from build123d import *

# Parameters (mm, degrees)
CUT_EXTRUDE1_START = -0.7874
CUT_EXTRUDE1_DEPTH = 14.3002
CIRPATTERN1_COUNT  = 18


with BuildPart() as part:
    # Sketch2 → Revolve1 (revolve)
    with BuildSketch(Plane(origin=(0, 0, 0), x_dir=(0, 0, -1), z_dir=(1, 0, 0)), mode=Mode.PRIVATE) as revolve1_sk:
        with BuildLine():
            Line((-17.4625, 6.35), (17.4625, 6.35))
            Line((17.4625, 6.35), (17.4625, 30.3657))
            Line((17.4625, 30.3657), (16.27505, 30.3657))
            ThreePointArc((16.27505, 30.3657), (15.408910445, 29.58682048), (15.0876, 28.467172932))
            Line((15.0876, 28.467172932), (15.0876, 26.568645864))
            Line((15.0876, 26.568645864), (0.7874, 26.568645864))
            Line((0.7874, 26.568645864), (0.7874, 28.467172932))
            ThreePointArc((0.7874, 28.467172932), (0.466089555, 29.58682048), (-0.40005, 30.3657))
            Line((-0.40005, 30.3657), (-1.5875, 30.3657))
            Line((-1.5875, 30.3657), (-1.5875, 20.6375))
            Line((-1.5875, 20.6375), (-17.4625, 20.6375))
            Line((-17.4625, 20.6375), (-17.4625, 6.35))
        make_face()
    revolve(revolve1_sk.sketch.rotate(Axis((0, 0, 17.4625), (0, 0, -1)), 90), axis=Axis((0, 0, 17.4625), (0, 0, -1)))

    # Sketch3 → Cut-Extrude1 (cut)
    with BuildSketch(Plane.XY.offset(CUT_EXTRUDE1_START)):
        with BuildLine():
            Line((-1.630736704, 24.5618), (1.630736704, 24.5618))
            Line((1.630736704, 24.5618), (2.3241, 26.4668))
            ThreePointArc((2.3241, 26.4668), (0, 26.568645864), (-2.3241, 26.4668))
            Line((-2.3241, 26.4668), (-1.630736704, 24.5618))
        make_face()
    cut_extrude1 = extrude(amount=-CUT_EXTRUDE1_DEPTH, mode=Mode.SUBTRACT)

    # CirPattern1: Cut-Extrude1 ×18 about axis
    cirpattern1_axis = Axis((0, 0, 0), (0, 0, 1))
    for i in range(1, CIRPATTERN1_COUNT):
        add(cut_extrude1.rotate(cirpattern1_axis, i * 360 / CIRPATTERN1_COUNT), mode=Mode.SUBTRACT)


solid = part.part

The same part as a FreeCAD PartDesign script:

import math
import FreeCAD as App
import Part
import Sketcher

V = App.Vector
Q = App.Units.Quantity

doc = App.newDocument("Part")
params = doc.addObject("Spreadsheet::Sheet", "Params")
for row, (alias, value) in enumerate([
    ("sketch1_width", "0.383 in"),
    ("sketch1_width2", "0.5625 in"),
    ("sketch1_height", "1.375 in"),
    ("sketch1_height2", "0.563 in"),
    ("sketch1_height3", "0.625 in"),
    ("revolution_angle", "360 deg"),
    ("pocket1_length", "0.563 in"),
], start=1):
    params.set(f"A{row}", alias)
    params.set(f"B{row}", "=" + value)
    params.setAlias(f"B{row}", alias)

body = doc.addObject("PartDesign::Body", "Body")

sketch1 = doc.addObject("Sketcher::SketchObject", "Sketch")
body.addObject(sketch1)
sketch1.AttachmentSupport = (doc.YZ_Plane, [""])
sketch1.MapMode = "FlatFace"
sketch1.addGeometry([
    Part.LineSegment(V(6.35, 17.4625, 0), V(6.35, -17.4625, 0)),
    Part.LineSegment(V(6.35, -17.4625, 0), V(30.3657, -17.4625, 0)),
    Part.LineSegment(V(30.3657, -17.4625, 0), V(30.3657, -16.27505, 0)),
    Part.ArcOfCircle(Part.Circle(V(28.467173, -17.199033, 0), V(0, 0, 1), 2.111433), math.radians(25.951455), math.radians(90)),
    Part.LineSegment(V(28.467173, -15.0876, 0), V(26.568646, -15.0876, 0)),
    Part.LineSegment(V(26.568646, -15.0876, 0), V(26.568646, -0.7874, 0)),
    Part.LineSegment(V(26.568646, -0.7874, 0), V(28.467173, -0.7874, 0)),
    Part.ArcOfCircle(Part.Circle(V(28.467173, 1.324033, 0), V(0, 0, 1), 2.111433), math.radians(-90), math.radians(-25.951455)),
    Part.LineSegment(V(30.3657, 0.40005, 0), V(30.3657, 1.5875, 0)),
    Part.LineSegment(V(30.3657, 1.5875, 0), V(20.6375, 1.5875, 0)),
    Part.LineSegment(V(20.6375, 1.5875, 0), V(20.6375, 17.4625, 0)),
    Part.LineSegment(V(20.6375, 17.4625, 0), V(6.35, 17.4625, 0)),
], False)
sketch1.addConstraint([
    Sketcher.Constraint("Coincident", 0, 2, 1, 1),
    Sketcher.Constraint("Coincident", 1, 2, 2, 1),
    Sketcher.Constraint("Coincident", 2, 2, 3, 1),
    Sketcher.Constraint("Tangent", 3, 2, 4, 1),
    Sketcher.Constraint("Coincident", 4, 2, 5, 1),
    Sketcher.Constraint("Coincident", 5, 2, 6, 1),
    Sketcher.Constraint("Tangent", 6, 2, 7, 1),
    Sketcher.Constraint("Coincident", 7, 2, 8, 1),
    Sketcher.Constraint("Coincident", 8, 2, 9, 1),
    Sketcher.Constraint("Coincident", 9, 2, 10, 1),
    Sketcher.Constraint("Coincident", 10, 2, 11, 1),
    Sketcher.Constraint("Coincident", 11, 2, 0, 1),
    Sketcher.Constraint("Vertical", 0),
    Sketcher.Constraint("Horizontal", 1),
    Sketcher.Constraint("Vertical", 2),
    Sketcher.Constraint("Horizontal", 4),
    Sketcher.Constraint("Vertical", 5),
    Sketcher.Constraint("Horizontal", 6),
    Sketcher.Constraint("Vertical", 8),
    Sketcher.Constraint("Horizontal", 9),
    Sketcher.Constraint("Vertical", 10),
    Sketcher.Constraint("Horizontal", 11),
    Sketcher.Constraint("Equal", 3, 7),
    Sketcher.Constraint("Vertical", 3, 3, 7, 3),
    Sketcher.Constraint("Vertical", 2, 2, 7, 2),
    Sketcher.Constraint("Equal", 2, 8),
    Sketcher.Constraint("DistanceX", 9, 2, 9, 1, Q("0.383 in")),
    Sketcher.Constraint("DistanceX", 11, 2, 11, 1, Q("0.5625 in")),
    Sketcher.Constraint("DistanceY", 0, 2, 0, 1, Q("1.375 in")),
    Sketcher.Constraint("DistanceY", 5, 1, 5, 2, Q("0.563 in")),
    Sketcher.Constraint("DistanceY", 10, 1, 10, 2, Q("0.625 in")),
    Sketcher.Constraint("DistanceX", -1, 1, 0, 2, Q("0.25 in")),
    Sketcher.Constraint("DistanceY", 0, 2, -1, 1, Q("0.6875 in")),
    Sketcher.Constraint("Radius", 3, 2.111433),
    Sketcher.Constraint("DistanceY", 2, 1, 2, 2, 1.18745),
    Sketcher.Constraint("DistanceX", 4, 2, 4, 1, 1.898527),
])
sketch1.setExpression("Constraints[26]", "Params.sketch1_width")
sketch1.setExpression("Constraints[27]", "Params.sketch1_width2")
sketch1.setExpression("Constraints[28]", "Params.sketch1_height")
sketch1.setExpression("Constraints[29]", "Params.sketch1_height2")
sketch1.setExpression("Constraints[30]", "Params.sketch1_height3")
revolution = doc.addObject("PartDesign::Revolution", "Revolution")
body.addObject(revolution)
revolution.Profile = sketch1
revolution.ReferenceAxis = (sketch1, ["V_Axis"])
revolution.setExpression("Angle", "Params.revolution_angle")

sketch2 = doc.addObject("Sketcher::SketchObject", "Sketch001")
body.addObject(sketch2)
sketch2.AttachmentSupport = (doc.XY_Plane, [""])
sketch2.MapMode = "FlatFace"
sketch2.AttachmentOffset = App.Placement(V(0, 0, -0.031 * 25.4), App.Rotation())
sketch2.addGeometry([
    Part.LineSegment(V(-1.630737, 24.5618, 0), V(1.630737, 24.5618, 0)),
    Part.LineSegment(V(1.630737, 24.5618, 0), V(2.3241, 26.4668, 0)),
    Part.ArcOfCircle(Part.Circle(V(0, 0, 0), V(0, 0, 1), 26.568646), math.radians(84.981621), math.radians(95.018379)),
    Part.LineSegment(V(-2.3241, 26.4668, 0), V(-1.630737, 24.5618, 0)),
], False)
sketch2.addConstraint([
    Sketcher.Constraint("Coincident", 0, 2, 1, 1),
    Sketcher.Constraint("Coincident", 1, 2, 2, 1),
    Sketcher.Constraint("Coincident", 2, 2, 3, 1),
    Sketcher.Constraint("Coincident", 3, 2, 0, 1),
    Sketcher.Constraint("Horizontal", 0),
    Sketcher.Constraint("Coincident", 2, 3, -1, 1),
    Sketcher.Constraint("Horizontal", 1, 2, 2, 2),
    Sketcher.Constraint("Equal", 1, 3),
    Sketcher.Constraint("Angle", 1, Q("70 deg")),
    Sketcher.Constraint("DistanceY", -1, 1, 0, 2, Q("0.967 in")),
    Sketcher.Constraint("DistanceY", -1, 1, 1, 2, Q("1.042 in")),
    Sketcher.Constraint("DistanceX", 2, 2, 1, 2, Q("0.183 in")),
])
pocket1 = doc.addObject("PartDesign::Pocket", "Pocket")
body.addObject(pocket1)
pocket1.Profile = sketch2
pocket1.setExpression("Length", "Params.pocket1_length")
doc.recompute()

polarpattern = doc.addObject("PartDesign::PolarPattern", "PolarPattern")
body.addObject(polarpattern)
polarpattern.Originals = [pocket1]
polarpattern.Axis = (doc.Z_Axis, [""])
polarpattern.Angle = 360
polarpattern.Occurrences = 18
body.Tip = polarpattern

doc.recompute()
